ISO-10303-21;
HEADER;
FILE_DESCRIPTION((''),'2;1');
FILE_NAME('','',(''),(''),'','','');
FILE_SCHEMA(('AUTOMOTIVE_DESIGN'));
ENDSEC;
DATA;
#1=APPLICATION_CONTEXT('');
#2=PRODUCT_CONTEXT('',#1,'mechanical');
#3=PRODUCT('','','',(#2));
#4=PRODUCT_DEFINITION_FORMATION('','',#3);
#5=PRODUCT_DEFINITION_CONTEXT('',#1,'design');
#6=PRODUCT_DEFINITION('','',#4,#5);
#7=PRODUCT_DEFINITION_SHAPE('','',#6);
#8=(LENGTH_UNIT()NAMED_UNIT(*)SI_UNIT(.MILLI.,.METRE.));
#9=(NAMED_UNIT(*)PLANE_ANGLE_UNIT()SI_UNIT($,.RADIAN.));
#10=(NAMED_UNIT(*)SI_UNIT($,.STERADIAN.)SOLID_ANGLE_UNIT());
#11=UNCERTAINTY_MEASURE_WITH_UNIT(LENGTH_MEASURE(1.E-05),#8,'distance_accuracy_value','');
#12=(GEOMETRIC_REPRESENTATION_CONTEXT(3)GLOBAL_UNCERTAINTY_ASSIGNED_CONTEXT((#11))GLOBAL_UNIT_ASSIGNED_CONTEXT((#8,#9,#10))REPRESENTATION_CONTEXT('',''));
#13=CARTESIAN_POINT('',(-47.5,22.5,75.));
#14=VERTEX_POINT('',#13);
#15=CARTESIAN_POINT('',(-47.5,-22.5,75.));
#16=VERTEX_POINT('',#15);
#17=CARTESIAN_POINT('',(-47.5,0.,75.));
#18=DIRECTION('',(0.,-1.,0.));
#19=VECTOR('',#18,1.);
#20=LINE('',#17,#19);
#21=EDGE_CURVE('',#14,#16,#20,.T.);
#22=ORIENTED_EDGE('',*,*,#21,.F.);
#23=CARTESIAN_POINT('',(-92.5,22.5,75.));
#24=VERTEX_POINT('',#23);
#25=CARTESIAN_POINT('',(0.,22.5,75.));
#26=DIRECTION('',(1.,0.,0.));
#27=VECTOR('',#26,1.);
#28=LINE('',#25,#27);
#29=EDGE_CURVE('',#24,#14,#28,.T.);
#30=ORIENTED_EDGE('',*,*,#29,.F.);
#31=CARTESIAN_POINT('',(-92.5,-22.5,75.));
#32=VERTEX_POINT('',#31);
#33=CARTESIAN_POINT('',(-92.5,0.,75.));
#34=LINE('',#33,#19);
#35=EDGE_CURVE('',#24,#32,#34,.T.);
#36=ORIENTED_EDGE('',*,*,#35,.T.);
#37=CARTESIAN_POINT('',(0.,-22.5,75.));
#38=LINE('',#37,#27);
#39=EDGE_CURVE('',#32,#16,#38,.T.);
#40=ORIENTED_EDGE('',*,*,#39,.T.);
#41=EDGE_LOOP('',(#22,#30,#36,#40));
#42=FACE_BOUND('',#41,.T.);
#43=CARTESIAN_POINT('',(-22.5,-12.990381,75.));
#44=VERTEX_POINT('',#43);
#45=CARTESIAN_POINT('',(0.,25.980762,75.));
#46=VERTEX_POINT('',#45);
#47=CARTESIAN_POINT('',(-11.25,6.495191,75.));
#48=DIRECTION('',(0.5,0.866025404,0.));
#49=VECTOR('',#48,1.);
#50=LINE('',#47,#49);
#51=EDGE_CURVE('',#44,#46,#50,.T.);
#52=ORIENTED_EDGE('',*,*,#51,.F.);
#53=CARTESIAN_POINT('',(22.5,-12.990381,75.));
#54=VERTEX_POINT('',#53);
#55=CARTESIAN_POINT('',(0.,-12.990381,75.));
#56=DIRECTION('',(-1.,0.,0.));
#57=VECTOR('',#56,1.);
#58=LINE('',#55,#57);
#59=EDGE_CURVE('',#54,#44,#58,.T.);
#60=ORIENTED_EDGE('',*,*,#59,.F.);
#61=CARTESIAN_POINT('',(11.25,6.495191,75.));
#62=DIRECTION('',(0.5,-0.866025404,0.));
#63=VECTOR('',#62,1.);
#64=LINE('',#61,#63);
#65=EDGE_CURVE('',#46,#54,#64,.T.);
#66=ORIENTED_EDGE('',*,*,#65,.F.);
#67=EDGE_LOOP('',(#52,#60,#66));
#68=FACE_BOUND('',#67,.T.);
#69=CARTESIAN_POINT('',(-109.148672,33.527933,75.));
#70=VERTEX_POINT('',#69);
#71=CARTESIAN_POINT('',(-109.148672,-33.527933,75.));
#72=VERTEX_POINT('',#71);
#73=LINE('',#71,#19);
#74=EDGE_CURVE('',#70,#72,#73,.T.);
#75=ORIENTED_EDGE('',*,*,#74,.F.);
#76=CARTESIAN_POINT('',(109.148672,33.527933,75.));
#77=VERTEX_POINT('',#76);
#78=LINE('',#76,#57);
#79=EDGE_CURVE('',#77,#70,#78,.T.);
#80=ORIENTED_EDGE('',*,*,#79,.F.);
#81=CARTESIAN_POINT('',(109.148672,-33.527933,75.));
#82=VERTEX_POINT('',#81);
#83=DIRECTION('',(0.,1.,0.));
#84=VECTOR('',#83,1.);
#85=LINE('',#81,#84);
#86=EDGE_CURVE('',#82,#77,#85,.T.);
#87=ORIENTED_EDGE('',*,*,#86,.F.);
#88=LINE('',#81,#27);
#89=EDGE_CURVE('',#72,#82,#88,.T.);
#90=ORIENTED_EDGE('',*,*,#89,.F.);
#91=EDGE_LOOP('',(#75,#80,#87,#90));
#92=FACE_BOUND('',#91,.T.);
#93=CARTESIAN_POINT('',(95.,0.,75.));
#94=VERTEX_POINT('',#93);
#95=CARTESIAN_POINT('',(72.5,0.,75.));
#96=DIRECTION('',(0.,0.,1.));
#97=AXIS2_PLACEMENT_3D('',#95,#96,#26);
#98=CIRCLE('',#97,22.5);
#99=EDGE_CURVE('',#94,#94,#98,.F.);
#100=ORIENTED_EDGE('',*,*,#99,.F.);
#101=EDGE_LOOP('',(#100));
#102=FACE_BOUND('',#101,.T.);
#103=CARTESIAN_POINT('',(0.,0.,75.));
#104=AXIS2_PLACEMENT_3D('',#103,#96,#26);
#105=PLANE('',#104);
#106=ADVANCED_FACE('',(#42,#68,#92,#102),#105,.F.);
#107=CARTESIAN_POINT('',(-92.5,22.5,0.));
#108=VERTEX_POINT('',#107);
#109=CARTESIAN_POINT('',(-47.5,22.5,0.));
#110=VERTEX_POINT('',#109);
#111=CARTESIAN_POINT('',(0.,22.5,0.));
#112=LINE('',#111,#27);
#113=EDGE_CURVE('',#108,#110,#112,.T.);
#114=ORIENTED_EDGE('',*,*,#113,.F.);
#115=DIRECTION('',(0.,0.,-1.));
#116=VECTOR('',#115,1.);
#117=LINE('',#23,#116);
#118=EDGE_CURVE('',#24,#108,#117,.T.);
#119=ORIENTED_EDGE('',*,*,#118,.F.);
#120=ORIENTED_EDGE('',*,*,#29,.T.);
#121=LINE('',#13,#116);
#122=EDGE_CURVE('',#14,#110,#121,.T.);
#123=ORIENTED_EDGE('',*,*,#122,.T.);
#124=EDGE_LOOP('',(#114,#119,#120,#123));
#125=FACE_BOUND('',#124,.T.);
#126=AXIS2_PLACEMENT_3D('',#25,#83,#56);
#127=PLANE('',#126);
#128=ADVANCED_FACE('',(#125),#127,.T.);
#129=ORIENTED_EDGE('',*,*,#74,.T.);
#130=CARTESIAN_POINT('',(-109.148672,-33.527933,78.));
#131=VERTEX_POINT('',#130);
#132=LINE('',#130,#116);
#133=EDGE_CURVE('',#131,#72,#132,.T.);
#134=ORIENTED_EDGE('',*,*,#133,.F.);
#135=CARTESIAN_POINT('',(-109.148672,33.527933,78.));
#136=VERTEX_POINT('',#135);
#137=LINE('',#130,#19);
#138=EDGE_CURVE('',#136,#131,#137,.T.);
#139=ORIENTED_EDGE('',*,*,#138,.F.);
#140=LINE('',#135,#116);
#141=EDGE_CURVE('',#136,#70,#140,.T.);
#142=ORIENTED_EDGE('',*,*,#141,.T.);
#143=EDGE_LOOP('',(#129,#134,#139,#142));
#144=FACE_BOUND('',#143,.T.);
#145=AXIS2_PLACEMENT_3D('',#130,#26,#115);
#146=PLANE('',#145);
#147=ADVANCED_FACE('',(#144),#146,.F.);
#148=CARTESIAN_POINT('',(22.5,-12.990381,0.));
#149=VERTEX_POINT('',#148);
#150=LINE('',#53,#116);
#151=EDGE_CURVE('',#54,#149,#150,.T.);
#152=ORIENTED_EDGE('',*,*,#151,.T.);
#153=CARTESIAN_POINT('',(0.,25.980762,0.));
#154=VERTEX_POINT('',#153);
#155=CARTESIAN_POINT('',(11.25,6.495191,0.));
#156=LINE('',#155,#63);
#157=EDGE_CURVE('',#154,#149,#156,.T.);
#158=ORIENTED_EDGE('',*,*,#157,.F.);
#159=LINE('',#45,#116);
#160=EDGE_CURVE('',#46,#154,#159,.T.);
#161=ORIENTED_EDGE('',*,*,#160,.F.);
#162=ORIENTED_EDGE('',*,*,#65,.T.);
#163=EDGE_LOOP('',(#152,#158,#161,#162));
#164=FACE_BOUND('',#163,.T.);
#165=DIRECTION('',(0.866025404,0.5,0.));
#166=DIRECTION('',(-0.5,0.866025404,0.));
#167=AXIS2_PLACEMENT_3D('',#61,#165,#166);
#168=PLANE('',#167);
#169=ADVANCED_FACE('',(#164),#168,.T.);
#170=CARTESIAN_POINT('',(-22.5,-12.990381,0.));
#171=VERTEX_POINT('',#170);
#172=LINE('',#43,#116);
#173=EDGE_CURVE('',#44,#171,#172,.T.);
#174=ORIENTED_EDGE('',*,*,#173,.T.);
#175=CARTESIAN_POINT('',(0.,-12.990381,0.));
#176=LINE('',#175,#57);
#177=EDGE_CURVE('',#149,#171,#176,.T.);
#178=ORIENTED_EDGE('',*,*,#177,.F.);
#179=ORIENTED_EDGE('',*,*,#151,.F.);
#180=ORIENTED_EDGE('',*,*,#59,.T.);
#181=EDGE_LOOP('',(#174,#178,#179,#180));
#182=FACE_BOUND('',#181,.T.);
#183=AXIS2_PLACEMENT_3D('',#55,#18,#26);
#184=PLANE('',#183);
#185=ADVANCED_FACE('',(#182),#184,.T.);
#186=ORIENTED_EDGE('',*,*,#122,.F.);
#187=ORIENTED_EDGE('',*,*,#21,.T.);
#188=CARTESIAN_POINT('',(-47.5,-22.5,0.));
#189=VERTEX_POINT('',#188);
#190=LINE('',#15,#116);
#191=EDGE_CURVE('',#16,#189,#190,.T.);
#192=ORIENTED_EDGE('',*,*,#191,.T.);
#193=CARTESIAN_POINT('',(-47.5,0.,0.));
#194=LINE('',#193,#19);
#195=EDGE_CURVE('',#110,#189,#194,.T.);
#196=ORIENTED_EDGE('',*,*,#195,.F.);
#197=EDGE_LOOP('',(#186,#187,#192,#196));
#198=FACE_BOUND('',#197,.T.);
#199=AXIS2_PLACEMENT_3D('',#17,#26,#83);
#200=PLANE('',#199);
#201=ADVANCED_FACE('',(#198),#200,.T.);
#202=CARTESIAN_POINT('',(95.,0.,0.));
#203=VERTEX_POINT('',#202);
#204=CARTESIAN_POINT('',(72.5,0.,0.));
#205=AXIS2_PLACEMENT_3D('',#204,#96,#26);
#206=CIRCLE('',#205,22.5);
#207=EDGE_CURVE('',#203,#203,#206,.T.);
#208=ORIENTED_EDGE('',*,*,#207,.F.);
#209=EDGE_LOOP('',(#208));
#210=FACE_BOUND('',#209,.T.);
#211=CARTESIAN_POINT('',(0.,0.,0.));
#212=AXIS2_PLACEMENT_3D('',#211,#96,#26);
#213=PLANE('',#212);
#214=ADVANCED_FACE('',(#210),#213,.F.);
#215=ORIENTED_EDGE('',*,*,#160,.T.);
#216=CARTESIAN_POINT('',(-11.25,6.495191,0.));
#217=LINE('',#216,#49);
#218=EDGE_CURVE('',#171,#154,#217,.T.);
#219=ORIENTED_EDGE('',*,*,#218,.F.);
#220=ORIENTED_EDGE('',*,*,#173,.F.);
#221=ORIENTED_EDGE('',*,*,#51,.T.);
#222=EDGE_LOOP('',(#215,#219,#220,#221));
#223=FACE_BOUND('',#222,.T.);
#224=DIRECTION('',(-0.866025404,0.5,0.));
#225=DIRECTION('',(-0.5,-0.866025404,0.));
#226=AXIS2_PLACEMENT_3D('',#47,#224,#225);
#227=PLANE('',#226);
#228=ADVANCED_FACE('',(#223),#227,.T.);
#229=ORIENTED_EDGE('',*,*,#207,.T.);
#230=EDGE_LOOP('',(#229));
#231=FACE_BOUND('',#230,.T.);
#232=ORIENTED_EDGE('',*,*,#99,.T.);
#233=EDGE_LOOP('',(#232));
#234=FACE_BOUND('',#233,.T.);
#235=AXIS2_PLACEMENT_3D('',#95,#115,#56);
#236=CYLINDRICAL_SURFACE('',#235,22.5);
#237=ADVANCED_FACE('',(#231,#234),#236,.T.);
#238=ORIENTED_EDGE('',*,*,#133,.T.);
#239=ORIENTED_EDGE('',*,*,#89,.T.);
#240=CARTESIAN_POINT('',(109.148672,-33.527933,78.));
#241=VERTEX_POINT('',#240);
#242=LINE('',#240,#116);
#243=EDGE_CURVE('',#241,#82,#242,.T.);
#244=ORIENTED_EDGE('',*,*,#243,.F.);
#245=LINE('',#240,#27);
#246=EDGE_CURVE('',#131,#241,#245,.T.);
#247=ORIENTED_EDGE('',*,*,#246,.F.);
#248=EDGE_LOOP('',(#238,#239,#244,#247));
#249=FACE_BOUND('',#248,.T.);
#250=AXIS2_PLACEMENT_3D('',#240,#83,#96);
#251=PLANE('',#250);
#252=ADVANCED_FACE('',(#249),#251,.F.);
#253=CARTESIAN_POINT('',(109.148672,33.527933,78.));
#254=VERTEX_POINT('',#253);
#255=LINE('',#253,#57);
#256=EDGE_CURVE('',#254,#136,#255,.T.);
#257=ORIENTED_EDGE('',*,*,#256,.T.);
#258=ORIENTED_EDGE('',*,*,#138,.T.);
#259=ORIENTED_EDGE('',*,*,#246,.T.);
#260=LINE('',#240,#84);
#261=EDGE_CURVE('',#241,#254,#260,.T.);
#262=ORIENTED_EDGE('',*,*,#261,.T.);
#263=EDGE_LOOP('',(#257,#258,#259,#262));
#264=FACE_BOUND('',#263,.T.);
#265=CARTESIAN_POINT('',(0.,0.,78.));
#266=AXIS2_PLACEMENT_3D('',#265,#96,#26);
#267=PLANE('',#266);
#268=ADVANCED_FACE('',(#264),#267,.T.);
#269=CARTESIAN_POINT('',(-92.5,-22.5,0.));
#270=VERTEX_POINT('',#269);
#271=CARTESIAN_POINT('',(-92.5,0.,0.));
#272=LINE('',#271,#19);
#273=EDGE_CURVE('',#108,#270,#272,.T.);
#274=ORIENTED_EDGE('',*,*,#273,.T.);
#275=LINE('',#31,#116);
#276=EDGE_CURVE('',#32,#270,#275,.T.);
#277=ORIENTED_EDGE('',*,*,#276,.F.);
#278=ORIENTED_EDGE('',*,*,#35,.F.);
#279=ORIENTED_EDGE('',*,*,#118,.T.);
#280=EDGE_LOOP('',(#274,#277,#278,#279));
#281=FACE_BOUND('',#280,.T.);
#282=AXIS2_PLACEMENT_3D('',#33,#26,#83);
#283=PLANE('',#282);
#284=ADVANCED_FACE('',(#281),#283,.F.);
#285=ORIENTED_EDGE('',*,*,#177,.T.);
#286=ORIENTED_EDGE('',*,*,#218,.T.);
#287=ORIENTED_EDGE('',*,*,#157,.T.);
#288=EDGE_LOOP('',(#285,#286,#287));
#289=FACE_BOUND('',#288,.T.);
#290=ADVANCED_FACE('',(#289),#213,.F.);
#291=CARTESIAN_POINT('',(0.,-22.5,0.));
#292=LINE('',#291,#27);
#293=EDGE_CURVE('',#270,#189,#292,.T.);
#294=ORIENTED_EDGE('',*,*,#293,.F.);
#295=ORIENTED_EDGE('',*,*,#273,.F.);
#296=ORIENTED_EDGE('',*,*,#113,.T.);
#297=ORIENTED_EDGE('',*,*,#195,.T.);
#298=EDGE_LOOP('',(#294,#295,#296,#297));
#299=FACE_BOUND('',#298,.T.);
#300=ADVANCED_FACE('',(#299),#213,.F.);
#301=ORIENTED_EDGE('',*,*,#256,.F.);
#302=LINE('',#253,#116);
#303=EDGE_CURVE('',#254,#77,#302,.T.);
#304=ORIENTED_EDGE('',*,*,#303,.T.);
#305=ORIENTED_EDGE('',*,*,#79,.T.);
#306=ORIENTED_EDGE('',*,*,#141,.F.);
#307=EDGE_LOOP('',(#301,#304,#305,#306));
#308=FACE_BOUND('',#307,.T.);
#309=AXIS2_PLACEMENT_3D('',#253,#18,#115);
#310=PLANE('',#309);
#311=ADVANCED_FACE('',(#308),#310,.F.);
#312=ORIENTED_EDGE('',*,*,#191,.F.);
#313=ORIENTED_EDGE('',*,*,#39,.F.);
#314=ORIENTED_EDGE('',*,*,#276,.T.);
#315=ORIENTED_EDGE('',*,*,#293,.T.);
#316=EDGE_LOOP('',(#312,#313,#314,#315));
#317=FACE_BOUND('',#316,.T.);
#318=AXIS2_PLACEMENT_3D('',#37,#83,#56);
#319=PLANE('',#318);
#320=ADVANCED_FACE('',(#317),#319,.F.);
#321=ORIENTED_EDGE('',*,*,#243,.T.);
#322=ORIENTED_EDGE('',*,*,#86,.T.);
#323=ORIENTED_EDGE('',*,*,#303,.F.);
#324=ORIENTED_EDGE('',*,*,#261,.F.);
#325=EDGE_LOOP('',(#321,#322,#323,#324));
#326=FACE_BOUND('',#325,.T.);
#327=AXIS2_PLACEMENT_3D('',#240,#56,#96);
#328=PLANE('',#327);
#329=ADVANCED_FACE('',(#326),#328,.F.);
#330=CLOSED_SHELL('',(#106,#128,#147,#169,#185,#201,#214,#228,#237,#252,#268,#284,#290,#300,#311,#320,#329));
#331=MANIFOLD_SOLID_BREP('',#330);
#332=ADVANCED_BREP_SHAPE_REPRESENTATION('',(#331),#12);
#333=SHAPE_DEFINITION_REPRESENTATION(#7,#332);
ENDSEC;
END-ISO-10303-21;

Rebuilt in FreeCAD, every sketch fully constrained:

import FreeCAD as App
import Part
import Sketcher
Q = App.Units.Quantity


def add_polygon(sketch, points):
    """Adds a closed chain of lines whose ends are joined by coincident constraints."""
    first, n = sketch.GeometryCount, len(points)
    for a, b in zip(points, points[1:] + points[:1]):
        sketch.addGeometry(Part.LineSegment(App.Vector(*a, 0), App.Vector(*b, 0)), False)
    for i in range(n):
        sketch.addConstraint(Sketcher.Constraint("Coincident", first + i, 2, first + (i + 1) % n, 1))

doc = App.newDocument("Part")
body = doc.addObject("PartDesign::Body", "Body")

# Sketch on XY plane
sketch1 = body.newObject("Sketcher::SketchObject", "Sketch")
sketch1.AttachmentSupport = (doc.getObject("XY_Plane"), [""])
sketch1.MapMode = "FlatFace"
sketch1.addGeometry(Part.Circle(App.Vector(72, 0, 0), App.Vector(0, 0, 1), 22), False)
sketch1.addConstraint([
    Sketcher.Constraint("PointOnObject", 0, 3, -1),
    Sketcher.Constraint("Diameter", 0, 45.0),
    Sketcher.Constraint("DistanceX", -1, 1, 0, 3, 72.5),
])
pad1 = body.newObject("PartDesign::Pad", "Pad")
pad1.Profile = sketch1
pad1.Length = 75
body2 = doc.addObject("PartDesign::Body", "Body001")

# Sketch on XY plane
sketch2 = body2.newObject("Sketcher::SketchObject", "Sketch001")
sketch2.AttachmentSupport = (doc.getObject("XY_Plane001"), [""])
sketch2.MapMode = "FlatFace"
add_polygon(sketch2, [(0, 26), (-22, -13), (22, -13)])  # lines 0-2
sketch2.addConstraint([
    Sketcher.Constraint("Horizontal", 1),
    Sketcher.Constraint("PointOnObject", 2, 2, -2),
    Sketcher.Constraint("Equal", 0, 2),
    Sketcher.Constraint("DistanceX", 1, 1, 1, 2, 45.0),
    Sketcher.Constraint("Angle", 0, Q("-120 deg")),
    Sketcher.Constraint("DistanceY", 0, 2, -1, 1, 12.990381),
])
pad2 = body2.newObject("PartDesign::Pad", "Pad001")
pad2.Profile = sketch2
pad2.Length = 75
body3 = doc.addObject("PartDesign::Body", "Body002")

# Sketch on XY plane
sketch3 = body3.newObject("Sketcher::SketchObject", "Sketch002")
sketch3.AttachmentSupport = (doc.getObject("XY_Plane002"), [""])
sketch3.MapMode = "FlatFace"
add_polygon(sketch3, [(-92, 22), (-92, -22), (-48, -22), (-48, 22)])  # lines 0-3
sketch3.addConstraint([
    Sketcher.Constraint("Vertical", 0),
    Sketcher.Constraint("Horizontal", 1),
    Sketcher.Constraint("Vertical", 2),
    Sketcher.Constraint("Horizontal", 3),
    Sketcher.Constraint("Equal", 3, 0),
    Sketcher.Constraint("DistanceX", 1, 1, 1, 2, 45.0),
    Sketcher.Constraint("DistanceX", 0, 2, -1, 1, 92.5),
    Sketcher.Constraint("DistanceY", 0, 2, -1, 1, 22.5),
])
pad3 = body3.newObject("PartDesign::Pad", "Pad002")
pad3.Profile = sketch3
pad3.Length = 75
body.AllowCompound = True
doc.recompute()

boolean = body.newObject("PartDesign::Boolean", "Boolean")
boolean.Type = "Fuse"
boolean.addObjects([body2])
doc.recompute()

boolean2 = body.newObject("PartDesign::Boolean", "Boolean001")
boolean2.Type = "Fuse"
boolean2.addObjects([body3])

# Sketch on XY plane
sketch4 = body.newObject("Sketcher::SketchObject", "Sketch003")
sketch4.AttachmentSupport = (doc.getObject("XY_Plane"), [""])
sketch4.MapMode = "FlatFace"
sketch4.AttachmentOffset = App.Placement(App.Vector(0, 0, 75), App.Rotation())
add_polygon(sketch4, [(-109, 34), (-109, -34), (109, -34), (109, 34)])  # lines 0-3
sketch4.addConstraint([
    Sketcher.Constraint("Vertical", 0),
    Sketcher.Constraint("Horizontal", 1),
    Sketcher.Constraint("Vertical", 2),
    Sketcher.Constraint("Horizontal", 3),
    Sketcher.Constraint("Symmetric", 0, 2, 2, 2, -1, 1),
    Sketcher.Constraint("DistanceX", 1, 1, 1, 2, 218.297344),
    Sketcher.Constraint("DistanceY", 0, 2, 0, 1, 67.055866),
])
pad4 = body.newObject("PartDesign::Pad", "Pad003")
pad4.Profile = sketch4
pad4.Length = 3

doc.recompute()
